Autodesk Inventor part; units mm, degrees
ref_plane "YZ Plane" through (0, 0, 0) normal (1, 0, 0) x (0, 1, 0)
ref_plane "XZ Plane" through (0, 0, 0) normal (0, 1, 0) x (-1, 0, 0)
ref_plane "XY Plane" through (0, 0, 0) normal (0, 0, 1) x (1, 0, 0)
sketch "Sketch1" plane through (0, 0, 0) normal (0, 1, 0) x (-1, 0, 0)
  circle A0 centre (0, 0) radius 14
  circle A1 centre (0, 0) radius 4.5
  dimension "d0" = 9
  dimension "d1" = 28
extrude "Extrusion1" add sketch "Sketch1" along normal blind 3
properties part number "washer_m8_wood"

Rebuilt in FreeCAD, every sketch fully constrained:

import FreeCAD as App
import Part
import Sketcher
from FreeCAD import Vector

doc = App.newDocument("Part")
body = doc.addObject("PartDesign::Body", "Body")

# Sketch on XZ plane
sketch1 = body.newObject("Sketcher::SketchObject", "Sketch")
sketch1.AttachmentSupport = (doc.getObject("XZ_Plane"), [""])
sketch1.MapMode = "FlatFace"
sketch1.addGeometry([
    Part.Circle(Vector(0, 0, 0), Vector(0, 0, 1), 14),
    Part.Circle(Vector(0, 0, 0), Vector(0, 0, 1), 4.5),
], False)
sketch1.addConstraint([
    Sketcher.Constraint("Coincident", 0, 3, -1, 1),
    Sketcher.Constraint("Coincident", 1, 3, -1, 1),
    Sketcher.Constraint("Diameter", 0, 28.0),
    Sketcher.Constraint("Diameter", 1, 9.0),
])
pad1 = body.newObject("PartDesign::Pad", "Pad")
pad1.Profile = sketch1
pad1.Length = 3
pad1.Reversed = True

doc.recompute()
